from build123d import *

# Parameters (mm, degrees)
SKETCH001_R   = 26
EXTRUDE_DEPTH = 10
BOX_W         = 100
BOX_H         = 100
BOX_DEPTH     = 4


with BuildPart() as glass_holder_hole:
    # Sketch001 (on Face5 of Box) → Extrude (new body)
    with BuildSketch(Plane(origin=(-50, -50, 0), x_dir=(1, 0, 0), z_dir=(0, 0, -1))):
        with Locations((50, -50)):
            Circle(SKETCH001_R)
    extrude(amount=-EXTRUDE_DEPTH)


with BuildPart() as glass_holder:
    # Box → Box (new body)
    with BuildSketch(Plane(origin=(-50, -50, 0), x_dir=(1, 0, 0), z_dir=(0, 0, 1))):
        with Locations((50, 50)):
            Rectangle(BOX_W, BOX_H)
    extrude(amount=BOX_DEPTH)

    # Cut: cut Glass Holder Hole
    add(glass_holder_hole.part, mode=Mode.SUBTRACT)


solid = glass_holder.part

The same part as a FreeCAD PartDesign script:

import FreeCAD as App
import Part
import Sketcher
Q = App.Units.Quantity


def add_polygon(sketch, points):
    """Adds a closed chain of lines whose ends are joined by coincident constraints."""
    first, n = sketch.GeometryCount, len(points)
    for a, b in zip(points, points[1:] + points[:1]):
        sketch.addGeometry(Part.LineSegment(App.Vector(*a, 0), App.Vector(*b, 0)), False)
    for i in range(n):
        sketch.addConstraint(Sketcher.Constraint("Coincident", first + i, 2, first + (i + 1) % n, 1))

doc = App.newDocument("Part")
body = doc.addObject("PartDesign::Body", "Body")

# Sketch on XY plane
sketch1 = body.newObject("Sketcher::SketchObject", "Sketch")
sketch1.AttachmentSupport = (doc.getObject("XY_Plane"), [""])
sketch1.MapMode = "FlatFace"
sketch1.addGeometry(Part.Circle(App.Vector(0, 0, 0), App.Vector(0, 0, 1), 26), False)
sketch1.addConstraint([
    Sketcher.Constraint("Coincident", 0, 3, -1, 1),
    Sketcher.Constraint("Diameter", 0, Q("52 mm")),
])
pad1 = body.newObject("PartDesign::Pad", "Pad")
pad1.Profile = sketch1
pad1.Length = 10
body2 = doc.addObject("PartDesign::Body", "Body001")

# Sketch on XY plane
sketch2 = body2.newObject("Sketcher::SketchObject", "Sketch001")
sketch2.AttachmentSupport = (doc.getObject("XY_Plane001"), [""])
sketch2.MapMode = "FlatFace"
add_polygon(sketch2, [(-50, 50), (-50, -50), (50, -50), (50, 50)])  # lines 0-3
sketch2.addConstraint([
    Sketcher.Constraint("Vertical", 0),
    Sketcher.Constraint("Horizontal", 1),
    Sketcher.Constraint("Vertical", 2),
    Sketcher.Constraint("Horizontal", 3),
    Sketcher.Constraint("Symmetric", 0, 2, 2, 2, -1, 1),
    Sketcher.Constraint("Equal", 3, 0),
    Sketcher.Constraint("DistanceX", 1, 1, 1, 2, Q("100 mm")),
])
pad2 = body2.newObject("PartDesign::Pad", "Pad001")
pad2.Profile = sketch2
pad2.Length = 4
doc.recompute()

boolean = body2.newObject("PartDesign::Boolean", "Boolean")
boolean.Type = "Cut"
boolean.addObjects([body])

doc.recompute()
